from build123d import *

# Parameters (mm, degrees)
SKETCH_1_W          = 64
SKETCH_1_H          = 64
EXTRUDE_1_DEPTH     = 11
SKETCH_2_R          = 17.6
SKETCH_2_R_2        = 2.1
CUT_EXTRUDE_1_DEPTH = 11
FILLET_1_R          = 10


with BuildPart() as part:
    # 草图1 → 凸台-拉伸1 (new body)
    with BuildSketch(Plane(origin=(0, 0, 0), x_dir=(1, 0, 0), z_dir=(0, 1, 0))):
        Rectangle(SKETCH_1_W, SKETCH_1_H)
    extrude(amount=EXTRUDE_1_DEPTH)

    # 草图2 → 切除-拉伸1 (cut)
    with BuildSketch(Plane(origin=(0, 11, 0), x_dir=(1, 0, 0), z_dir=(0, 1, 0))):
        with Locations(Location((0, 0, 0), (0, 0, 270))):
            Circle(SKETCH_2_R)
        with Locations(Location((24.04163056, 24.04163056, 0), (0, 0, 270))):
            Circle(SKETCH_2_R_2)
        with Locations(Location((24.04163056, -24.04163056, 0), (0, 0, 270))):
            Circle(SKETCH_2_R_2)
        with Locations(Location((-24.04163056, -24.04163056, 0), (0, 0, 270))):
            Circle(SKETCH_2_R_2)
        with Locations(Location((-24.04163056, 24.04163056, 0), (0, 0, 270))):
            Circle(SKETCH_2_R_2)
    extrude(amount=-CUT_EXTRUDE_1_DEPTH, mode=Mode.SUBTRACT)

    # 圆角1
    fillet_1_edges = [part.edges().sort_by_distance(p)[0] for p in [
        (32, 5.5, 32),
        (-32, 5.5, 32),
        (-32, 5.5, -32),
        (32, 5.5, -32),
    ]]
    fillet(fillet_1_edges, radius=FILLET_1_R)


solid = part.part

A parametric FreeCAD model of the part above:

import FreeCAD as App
import Part
import Sketcher

V = App.Vector
Q = App.Units.Quantity


def edges_at(feature, points):
    """Names of the edges that pass closest to the given points."""
    edges = feature.Shape.Edges
    near = lambda p: min(range(len(edges)), key=lambda i: edges[i].distToShape(Part.Vertex(*p))[0])
    return sorted({f"Edge{near(p) + 1}" for p in points})

doc = App.newDocument("Part")
body = doc.addObject("PartDesign::Body", "Body")

# Sketch on XZ plane
sketch1 = body.newObject("Sketcher::SketchObject", "Sketch")
sketch1.AttachmentSupport = (doc.getObject("XZ_Plane"), [""])
sketch1.MapMode = "FlatFace"
sketch1.addGeometry(Part.LineSegment(V(-32, -32, 0), V(-32, 32, 0)), False)
sketch1.addGeometry(Part.LineSegment(V(-32, 32, 0), V(32, 32, 0)), False)
sketch1.addGeometry(Part.LineSegment(V(32, 32, 0), V(32, -32, 0)), False)
sketch1.addGeometry(Part.LineSegment(V(32, -32, 0), V(-32, -32, 0)), False)
sketch1.addConstraint(Sketcher.Constraint("Coincident", 0, 2, 1, 1))
sketch1.addConstraint(Sketcher.Constraint("Coincident", 1, 2, 2, 1))
sketch1.addConstraint(Sketcher.Constraint("Coincident", 2, 2, 3, 1))
sketch1.addConstraint(Sketcher.Constraint("Coincident", 3, 2, 0, 1))
sketch1.addConstraint(Sketcher.Constraint("Vertical", 0))
sketch1.addConstraint(Sketcher.Constraint("Horizontal", 1))
sketch1.addConstraint(Sketcher.Constraint("Vertical", 2))
sketch1.addConstraint(Sketcher.Constraint("Horizontal", 3))
sketch1.addConstraint(Sketcher.Constraint("Symmetric", 0, 2, 2, 2, -1, 1))
sketch1.addConstraint(Sketcher.Constraint("Equal", 3, 0))
sketch1.addConstraint(Sketcher.Constraint("DistanceX", 1, 1, 1, 2, Q("64 mm")))
pad1 = body.newObject("PartDesign::Pad", "Pad")
pad1.Profile = sketch1
pad1.Length = 11
pad1.Reversed = True

# Sketch on XZ plane
sketch2 = body.newObject("Sketcher::SketchObject", "Sketch001")
sketch2.AttachmentSupport = (doc.getObject("XZ_Plane"), [""])
sketch2.MapMode = "FlatFace"
sketch2.AttachmentOffset = App.Placement(V(0, 0, -11), App.Rotation())
sketch2.addGeometry(Part.Circle(V(0, 0, 0), V(0, 0, 1), 17.6), False)
sketch2.addGeometry(Part.Circle(V(24, -24, 0), V(0, 0, 1), 2.1), False)
sketch2.addGeometry(Part.Circle(V(24, 24, 0), V(0, 0, 1), 2.1), False)
sketch2.addGeometry(Part.Circle(V(-24, 24, 0), V(0, 0, 1), 2.1), False)
sketch2.addGeometry(Part.Circle(V(-24, -24, 0), V(0, 0, 1), 2.1), False)
sketch2.addConstraint(Sketcher.Constraint("Coincident", 0, 3, -1, 1))
sketch2.addConstraint(Sketcher.Constraint("Equal", 1, 2))
sketch2.addConstraint(Sketcher.Constraint("Equal", 2, 3))
sketch2.addConstraint(Sketcher.Constraint("Equal", 3, 4))
sketch2.addConstraint(Sketcher.Constraint("Symmetric", 1, 3, 3, 3, -1, 1))
sketch2.addConstraint(Sketcher.Constraint("Symmetric", 2, 3, 4, 3, -1, 1))
sketch2.addConstraint(Sketcher.Constraint("Symmetric", 2, 3, 3, 3, -2))
sketch2.addConstraint(Sketcher.Constraint("Diameter", 0, Q("35.2 mm")))
sketch2.addConstraint(Sketcher.Constraint("Diameter", 1, Q("4.2 mm")))
sketch2.addConstraint(Sketcher.Constraint("DistanceX", -1, 1, 1, 3, Q("24.041631 mm")))
sketch2.addConstraint(Sketcher.Constraint("DistanceY", 1, 3, -1, 1, Q("24.041631 mm")))
pocket1 = body.newObject("PartDesign::Pocket", "Pocket")
pocket1.Profile = sketch2
pocket1.Length = 11
pocket1.Reversed = True
doc.recompute()

fillet = body.newObject("PartDesign::Fillet", "Fillet")
fillet.Base = (pocket1, edges_at(pocket1, [
    (32, 5.5, 32),
    (-32, 5.5, 32),
    (-32, 5.5, -32),
    (32, 5.5, -32),
]))
fillet.Radius = 10

doc.recompute()
